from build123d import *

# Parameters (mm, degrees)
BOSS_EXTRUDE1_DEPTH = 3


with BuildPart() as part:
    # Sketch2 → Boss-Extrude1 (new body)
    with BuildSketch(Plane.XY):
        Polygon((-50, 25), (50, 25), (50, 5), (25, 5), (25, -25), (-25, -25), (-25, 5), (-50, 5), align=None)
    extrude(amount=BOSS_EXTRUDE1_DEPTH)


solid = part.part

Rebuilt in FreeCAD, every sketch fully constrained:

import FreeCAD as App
import Part
import Sketcher
from FreeCAD import Vector
Q = App.Units.Quantity

doc = App.newDocument("Part")
body = doc.addObject("PartDesign::Body", "Body")

sketch1 = body.newObject("Sketcher::SketchObject", "Sketch")
sketch1.AttachmentSupport = (doc.getObject("XY_Plane"), [""])
sketch1.MapMode = "FlatFace"
sketch1.addGeometry([
    Part.LineSegment(Vector(50, 25, 0), Vector(-50, 25, 0)),
    Part.LineSegment(Vector(-50, 25, 0), Vector(-50, 5, 0)),
    Part.LineSegment(Vector(-50, 5, 0), Vector(-25, 5, 0)),
    Part.LineSegment(Vector(-25, 5, 0), Vector(-25, -25, 0)),
    Part.LineSegment(Vector(-25, -25, 0), Vector(25, -25, 0)),
    Part.LineSegment(Vector(25, -25, 0), Vector(25, 5, 0)),
    Part.LineSegment(Vector(25, 5, 0), Vector(50, 5, 0)),
    Part.LineSegment(Vector(50, 5, 0), Vector(50, 25, 0)),
], False)
sketch1.addConstraint([
    Sketcher.Constraint("Coincident", 0, 2, 1, 1),
    Sketcher.Constraint("Coincident", 1, 2, 2, 1),
    Sketcher.Constraint("Coincident", 2, 2, 3, 1),
    Sketcher.Constraint("Coincident", 3, 2, 4, 1),
    Sketcher.Constraint("Coincident", 4, 2, 5, 1),
    Sketcher.Constraint("Coincident", 5, 2, 6, 1),
    Sketcher.Constraint("Coincident", 6, 2, 7, 1),
    Sketcher.Constraint("Coincident", 7, 2, 0, 1),
    Sketcher.Constraint("Horizontal", 0),
    Sketcher.Constraint("Vertical", 1),
    Sketcher.Constraint("Horizontal", 2),
    Sketcher.Constraint("Vertical", 3),
    Sketcher.Constraint("Horizontal", 4),
    Sketcher.Constraint("Vertical", 5),
    Sketcher.Constraint("Horizontal", 6),
    Sketcher.Constraint("Vertical", 7),
    Sketcher.Constraint("Symmetric", 2, 2, 5, 2, -2),
    Sketcher.Constraint("Equal", 2, 6),
    Sketcher.Constraint("DistanceX", 0, 2, 0, 1, Q("100 mm")),
    Sketcher.Constraint("DistanceX", 2, 1, 2, 2, Q("25 mm")),
    Sketcher.Constraint("DistanceY", 1, 2, 1, 1, Q("20 mm")),
    Sketcher.Constraint("DistanceY", 3, 2, 3, 1, Q("30 mm")),
    Sketcher.Constraint("DistanceY", -1, 1, 0, 2, Q("25 mm")),
])
pad1 = body.newObject("PartDesign::Pad", "Pad")
pad1.Profile = sketch1
pad1.Length = 3

doc.recompute()
